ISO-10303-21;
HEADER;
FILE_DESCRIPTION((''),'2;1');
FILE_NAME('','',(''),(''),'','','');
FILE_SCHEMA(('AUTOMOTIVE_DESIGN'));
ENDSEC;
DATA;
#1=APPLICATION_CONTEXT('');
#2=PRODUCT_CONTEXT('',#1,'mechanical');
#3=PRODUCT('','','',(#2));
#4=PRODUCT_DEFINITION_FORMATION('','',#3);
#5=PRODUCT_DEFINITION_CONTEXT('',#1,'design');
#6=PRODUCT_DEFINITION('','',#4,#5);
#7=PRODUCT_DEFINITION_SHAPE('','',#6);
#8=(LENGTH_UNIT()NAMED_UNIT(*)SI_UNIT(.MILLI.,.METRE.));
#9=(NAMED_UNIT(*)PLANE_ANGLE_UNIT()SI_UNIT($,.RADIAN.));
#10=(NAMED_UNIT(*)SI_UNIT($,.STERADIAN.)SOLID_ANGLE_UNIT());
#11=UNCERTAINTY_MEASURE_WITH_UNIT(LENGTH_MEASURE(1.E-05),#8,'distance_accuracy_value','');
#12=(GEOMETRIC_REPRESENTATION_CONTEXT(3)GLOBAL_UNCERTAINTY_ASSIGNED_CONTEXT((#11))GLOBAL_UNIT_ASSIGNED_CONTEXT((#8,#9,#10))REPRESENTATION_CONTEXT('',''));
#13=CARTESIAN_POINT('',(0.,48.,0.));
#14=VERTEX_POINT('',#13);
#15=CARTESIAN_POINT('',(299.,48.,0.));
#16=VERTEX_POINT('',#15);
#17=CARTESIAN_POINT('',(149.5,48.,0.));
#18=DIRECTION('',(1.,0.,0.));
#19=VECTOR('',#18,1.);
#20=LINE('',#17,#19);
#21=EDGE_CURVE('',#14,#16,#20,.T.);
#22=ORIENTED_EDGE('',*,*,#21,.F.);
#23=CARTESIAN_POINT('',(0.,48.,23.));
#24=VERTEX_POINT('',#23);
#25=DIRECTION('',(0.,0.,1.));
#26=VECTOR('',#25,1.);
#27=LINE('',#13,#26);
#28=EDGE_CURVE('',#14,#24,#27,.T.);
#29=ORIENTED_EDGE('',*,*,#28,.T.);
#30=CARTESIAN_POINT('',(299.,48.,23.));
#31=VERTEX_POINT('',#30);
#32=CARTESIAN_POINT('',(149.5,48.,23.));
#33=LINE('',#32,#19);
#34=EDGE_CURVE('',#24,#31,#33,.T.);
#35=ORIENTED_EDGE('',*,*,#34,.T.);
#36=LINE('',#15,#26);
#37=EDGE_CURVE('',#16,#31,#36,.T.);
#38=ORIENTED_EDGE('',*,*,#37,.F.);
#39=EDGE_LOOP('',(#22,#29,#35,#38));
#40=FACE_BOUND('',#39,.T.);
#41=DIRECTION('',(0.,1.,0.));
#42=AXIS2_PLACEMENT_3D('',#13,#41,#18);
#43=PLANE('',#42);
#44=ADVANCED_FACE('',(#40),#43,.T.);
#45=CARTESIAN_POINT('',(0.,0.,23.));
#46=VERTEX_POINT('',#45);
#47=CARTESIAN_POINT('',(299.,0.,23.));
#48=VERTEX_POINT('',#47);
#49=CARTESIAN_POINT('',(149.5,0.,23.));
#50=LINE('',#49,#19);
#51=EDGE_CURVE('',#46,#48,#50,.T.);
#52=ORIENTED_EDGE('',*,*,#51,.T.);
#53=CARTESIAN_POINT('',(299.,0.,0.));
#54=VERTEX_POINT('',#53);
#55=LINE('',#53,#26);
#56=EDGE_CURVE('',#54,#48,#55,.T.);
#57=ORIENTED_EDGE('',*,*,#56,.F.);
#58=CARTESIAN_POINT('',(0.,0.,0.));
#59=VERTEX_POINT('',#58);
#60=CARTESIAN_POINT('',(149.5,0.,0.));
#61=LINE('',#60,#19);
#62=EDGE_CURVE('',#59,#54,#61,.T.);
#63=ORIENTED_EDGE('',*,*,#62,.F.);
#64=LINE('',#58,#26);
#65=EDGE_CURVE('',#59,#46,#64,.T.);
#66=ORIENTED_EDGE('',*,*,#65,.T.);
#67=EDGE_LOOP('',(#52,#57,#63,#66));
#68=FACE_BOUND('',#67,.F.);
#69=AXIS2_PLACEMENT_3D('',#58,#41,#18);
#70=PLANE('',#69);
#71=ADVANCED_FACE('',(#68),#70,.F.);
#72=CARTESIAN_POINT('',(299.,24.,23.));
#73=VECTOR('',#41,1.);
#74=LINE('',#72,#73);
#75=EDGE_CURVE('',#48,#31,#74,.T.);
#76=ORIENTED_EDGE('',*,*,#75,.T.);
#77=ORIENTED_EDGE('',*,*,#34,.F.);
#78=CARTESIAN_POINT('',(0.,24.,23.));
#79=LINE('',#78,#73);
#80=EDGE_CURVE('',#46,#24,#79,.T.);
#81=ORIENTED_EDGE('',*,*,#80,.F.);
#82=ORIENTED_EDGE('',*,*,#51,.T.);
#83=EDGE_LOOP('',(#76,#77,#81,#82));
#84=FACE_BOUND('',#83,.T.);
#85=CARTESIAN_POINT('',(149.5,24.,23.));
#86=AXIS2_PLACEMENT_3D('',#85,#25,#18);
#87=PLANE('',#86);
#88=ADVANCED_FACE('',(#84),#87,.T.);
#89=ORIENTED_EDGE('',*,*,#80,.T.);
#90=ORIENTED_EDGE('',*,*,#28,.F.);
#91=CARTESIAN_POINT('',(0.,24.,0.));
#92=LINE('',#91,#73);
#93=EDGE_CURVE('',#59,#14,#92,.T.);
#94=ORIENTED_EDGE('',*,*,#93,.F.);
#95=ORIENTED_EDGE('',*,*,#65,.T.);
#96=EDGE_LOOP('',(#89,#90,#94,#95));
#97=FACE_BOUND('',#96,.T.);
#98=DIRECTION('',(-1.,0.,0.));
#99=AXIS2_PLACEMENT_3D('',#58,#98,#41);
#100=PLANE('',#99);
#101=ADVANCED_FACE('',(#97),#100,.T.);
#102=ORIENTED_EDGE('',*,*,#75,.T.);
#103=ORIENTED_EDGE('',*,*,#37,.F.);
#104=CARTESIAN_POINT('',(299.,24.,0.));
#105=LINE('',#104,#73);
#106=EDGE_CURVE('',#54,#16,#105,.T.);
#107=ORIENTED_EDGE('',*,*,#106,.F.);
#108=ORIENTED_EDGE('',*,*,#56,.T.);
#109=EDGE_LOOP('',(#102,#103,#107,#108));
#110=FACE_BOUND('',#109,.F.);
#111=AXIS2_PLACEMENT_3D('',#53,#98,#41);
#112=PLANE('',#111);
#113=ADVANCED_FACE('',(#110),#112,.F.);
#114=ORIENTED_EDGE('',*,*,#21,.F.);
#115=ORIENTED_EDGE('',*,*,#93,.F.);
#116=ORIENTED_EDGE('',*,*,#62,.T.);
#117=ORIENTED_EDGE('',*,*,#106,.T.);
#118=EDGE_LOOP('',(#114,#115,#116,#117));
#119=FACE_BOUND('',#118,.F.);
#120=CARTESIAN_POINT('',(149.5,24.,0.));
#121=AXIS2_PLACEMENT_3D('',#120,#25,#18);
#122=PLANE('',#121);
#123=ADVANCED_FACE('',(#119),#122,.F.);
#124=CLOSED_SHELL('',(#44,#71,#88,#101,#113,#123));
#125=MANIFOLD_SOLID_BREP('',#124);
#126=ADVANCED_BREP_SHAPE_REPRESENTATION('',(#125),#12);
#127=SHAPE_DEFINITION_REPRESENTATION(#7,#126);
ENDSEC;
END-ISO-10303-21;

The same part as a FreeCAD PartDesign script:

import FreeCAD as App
import Part
import Sketcher


def add_polygon(sketch, points):
    """Adds a closed chain of lines whose ends are joined by coincident constraints."""
    first, n = sketch.GeometryCount, len(points)
    for a, b in zip(points, points[1:] + points[:1]):
        sketch.addGeometry(Part.LineSegment(App.Vector(*a, 0), App.Vector(*b, 0)), False)
    for i in range(n):
        sketch.addConstraint(Sketcher.Constraint("Coincident", first + i, 2, first + (i + 1) % n, 1))

doc = App.newDocument("Part")
body = doc.addObject("PartDesign::Body", "Body")

# Sketch on XY plane
sketch1 = body.newObject("Sketcher::SketchObject", "Sketch")
sketch1.AttachmentSupport = (doc.getObject("XY_Plane"), [""])
sketch1.MapMode = "FlatFace"
add_polygon(sketch1, [(0, 48), (0, 0), (299, 0), (299, 48)])  # lines 0-3
sketch1.addConstraint(Sketcher.Constraint("Vertical", 0))
sketch1.addConstraint(Sketcher.Constraint("Horizontal", 1))
sketch1.addConstraint(Sketcher.Constraint("Vertical", 2))
sketch1.addConstraint(Sketcher.Constraint("Horizontal", 3))
sketch1.addConstraint(Sketcher.Constraint("Coincident", 0, 2, -1, 1))
sketch1.addConstraint(Sketcher.Constraint("DistanceX", 1, 1, 1, 2, 299.0))
sketch1.addConstraint(Sketcher.Constraint("DistanceY", 0, 2, 0, 1, 48.0))
pad1 = body.newObject("PartDesign::Pad", "Pad")
pad1.Profile = sketch1
pad1.Length = 23

doc.recompute()
